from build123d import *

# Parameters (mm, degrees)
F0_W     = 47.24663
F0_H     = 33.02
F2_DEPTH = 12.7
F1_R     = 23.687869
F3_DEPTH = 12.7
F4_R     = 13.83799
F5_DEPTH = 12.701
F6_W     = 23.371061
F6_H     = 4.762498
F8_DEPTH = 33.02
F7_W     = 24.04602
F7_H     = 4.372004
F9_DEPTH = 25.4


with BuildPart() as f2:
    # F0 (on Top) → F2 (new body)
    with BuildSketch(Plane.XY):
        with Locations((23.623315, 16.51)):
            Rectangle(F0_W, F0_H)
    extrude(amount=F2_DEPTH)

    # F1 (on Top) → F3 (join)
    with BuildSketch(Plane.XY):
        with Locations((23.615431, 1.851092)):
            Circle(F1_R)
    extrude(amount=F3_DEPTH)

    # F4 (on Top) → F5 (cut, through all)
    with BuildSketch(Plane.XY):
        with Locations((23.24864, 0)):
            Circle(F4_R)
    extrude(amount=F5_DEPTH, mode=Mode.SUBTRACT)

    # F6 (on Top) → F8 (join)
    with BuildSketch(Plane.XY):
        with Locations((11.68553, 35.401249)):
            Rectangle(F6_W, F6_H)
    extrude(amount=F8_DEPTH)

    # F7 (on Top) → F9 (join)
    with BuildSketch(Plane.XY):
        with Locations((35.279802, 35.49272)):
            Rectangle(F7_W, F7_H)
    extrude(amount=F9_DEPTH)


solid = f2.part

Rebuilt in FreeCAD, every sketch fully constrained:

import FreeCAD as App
import Part
import Sketcher
from FreeCAD import Vector
Q = App.Units.Quantity


def add_polygon(sketch, points):
    """Adds a closed chain of lines whose ends are joined by coincident constraints."""
    first, n = sketch.GeometryCount, len(points)
    for a, b in zip(points, points[1:] + points[:1]):
        sketch.addGeometry(Part.LineSegment(App.Vector(*a, 0), App.Vector(*b, 0)), False)
    for i in range(n):
        sketch.addConstraint(Sketcher.Constraint("Coincident", first + i, 2, first + (i + 1) % n, 1))

doc = App.newDocument("Part")
body = doc.addObject("PartDesign::Body", "Body")

# Sketch on XY plane
sketch1 = body.newObject("Sketcher::SketchObject", "Sketch")
sketch1.AttachmentSupport = (doc.getObject("XY_Plane"), [""])
sketch1.MapMode = "FlatFace"
add_polygon(sketch1, [(0, 33), (0, 0), (47, 0), (47, 33)])  # lines 0-3
sketch1.addConstraint([
    Sketcher.Constraint("Vertical", 0),
    Sketcher.Constraint("Horizontal", 1),
    Sketcher.Constraint("Vertical", 2),
    Sketcher.Constraint("Horizontal", 3),
    Sketcher.Constraint("Coincident", 0, 2, -1, 1),
    Sketcher.Constraint("DistanceY", 0, 2, 0, 1, Q("1.3 in")),
    Sketcher.Constraint("DistanceX", 1, 1, 1, 2, Q("47.24663 mm")),
])
pad1 = body.newObject("PartDesign::Pad", "Pad")
pad1.Profile = sketch1
pad1.Length = Q("0.5 in")

# Sketch on XY plane
sketch2 = body.newObject("Sketcher::SketchObject", "Sketch001")
sketch2.AttachmentSupport = (doc.getObject("XY_Plane"), [""])
sketch2.MapMode = "FlatFace"
sketch2.addGeometry(Part.Circle(Vector(24, 2, 0), Vector(0, 0, 1), 24), False)
sketch2.addConstraint([
    Sketcher.Constraint("Diameter", 0, Q("47.375738 mm")),
    Sketcher.Constraint("DistanceX", -1, 1, 0, 3, Q("23.615431 mm")),
    Sketcher.Constraint("DistanceY", -1, 1, 0, 3, Q("1.851092 mm")),
])
pad2 = body.newObject("PartDesign::Pad", "Pad001")
pad2.Profile = sketch2
pad2.Length = Q("0.5 in")

# Sketch on XY plane
sketch3 = body.newObject("Sketcher::SketchObject", "Sketch002")
sketch3.AttachmentSupport = (doc.getObject("XY_Plane"), [""])
sketch3.MapMode = "FlatFace"
sketch3.addGeometry(Part.Circle(Vector(23, 0, 0), Vector(0, 0, 1), 14), False)
sketch3.addConstraint([
    Sketcher.Constraint("PointOnObject", 0, 3, -1),
    Sketcher.Constraint("Diameter", 0, Q("27.67598 mm")),
    Sketcher.Constraint("DistanceX", -1, 1, 0, 3, Q("23.24864 mm")),
])
pocket1 = body.newObject("PartDesign::Pocket", "Pocket")
pocket1.Profile = sketch3
pocket1.Type = "ThroughAll"
pocket1.Reversed = True

# Sketch on XY plane
sketch4 = body.newObject("Sketcher::SketchObject", "Sketch003")
sketch4.AttachmentSupport = (doc.getObject("XY_Plane"), [""])
sketch4.MapMode = "FlatFace"
add_polygon(sketch4, [(0, 37.8), (0, 33), (23.4, 33), (23.4, 37.8)])  # lines 0-3
sketch4.addConstraint([
    Sketcher.Constraint("Vertical", 0),
    Sketcher.Constraint("Horizontal", 1),
    Sketcher.Constraint("Vertical", 2),
    Sketcher.Constraint("Horizontal", 3),
    Sketcher.Constraint("PointOnObject", 0, 2, -2),
    Sketcher.Constraint("DistanceY", -1, 1, 0, 2, Q("1.3 in")),
    Sketcher.Constraint("DistanceY", 0, 2, 0, 1, Q("0.1874999 in")),
    Sketcher.Constraint("DistanceX", 1, 1, 1, 2, Q("23.371061 mm")),
])
pad3 = body.newObject("PartDesign::Pad", "Pad002")
pad3.Profile = sketch4
pad3.Length = Q("1.3 in")

# Sketch on XY plane
sketch5 = body.newObject("Sketcher::SketchObject", "Sketch004")
sketch5.AttachmentSupport = (doc.getObject("XY_Plane"), [""])
sketch5.MapMode = "FlatFace"
add_polygon(sketch5, [(23.3, 37.7), (23.3, 33.3), (47.3, 33.3), (47.3, 37.7)])  # lines 0-3
sketch5.addConstraint([
    Sketcher.Constraint("Vertical", 0),
    Sketcher.Constraint("Horizontal", 1),
    Sketcher.Constraint("Vertical", 2),
    Sketcher.Constraint("Horizontal", 3),
    Sketcher.Constraint("DistanceX", 1, 1, 1, 2, Q("24.04602 mm")),
    Sketcher.Constraint("DistanceY", 0, 2, 0, 1, Q("4.372004 mm")),
    Sketcher.Constraint("DistanceX", -1, 1, 0, 2, Q("23.256792 mm")),
    Sketcher.Constraint("DistanceY", -1, 1, 0, 2, Q("33.306718 mm")),
])
pad4 = body.newObject("PartDesign::Pad", "Pad003")
pad4.Profile = sketch5
pad4.Length = Q("1 in")

doc.recompute()
